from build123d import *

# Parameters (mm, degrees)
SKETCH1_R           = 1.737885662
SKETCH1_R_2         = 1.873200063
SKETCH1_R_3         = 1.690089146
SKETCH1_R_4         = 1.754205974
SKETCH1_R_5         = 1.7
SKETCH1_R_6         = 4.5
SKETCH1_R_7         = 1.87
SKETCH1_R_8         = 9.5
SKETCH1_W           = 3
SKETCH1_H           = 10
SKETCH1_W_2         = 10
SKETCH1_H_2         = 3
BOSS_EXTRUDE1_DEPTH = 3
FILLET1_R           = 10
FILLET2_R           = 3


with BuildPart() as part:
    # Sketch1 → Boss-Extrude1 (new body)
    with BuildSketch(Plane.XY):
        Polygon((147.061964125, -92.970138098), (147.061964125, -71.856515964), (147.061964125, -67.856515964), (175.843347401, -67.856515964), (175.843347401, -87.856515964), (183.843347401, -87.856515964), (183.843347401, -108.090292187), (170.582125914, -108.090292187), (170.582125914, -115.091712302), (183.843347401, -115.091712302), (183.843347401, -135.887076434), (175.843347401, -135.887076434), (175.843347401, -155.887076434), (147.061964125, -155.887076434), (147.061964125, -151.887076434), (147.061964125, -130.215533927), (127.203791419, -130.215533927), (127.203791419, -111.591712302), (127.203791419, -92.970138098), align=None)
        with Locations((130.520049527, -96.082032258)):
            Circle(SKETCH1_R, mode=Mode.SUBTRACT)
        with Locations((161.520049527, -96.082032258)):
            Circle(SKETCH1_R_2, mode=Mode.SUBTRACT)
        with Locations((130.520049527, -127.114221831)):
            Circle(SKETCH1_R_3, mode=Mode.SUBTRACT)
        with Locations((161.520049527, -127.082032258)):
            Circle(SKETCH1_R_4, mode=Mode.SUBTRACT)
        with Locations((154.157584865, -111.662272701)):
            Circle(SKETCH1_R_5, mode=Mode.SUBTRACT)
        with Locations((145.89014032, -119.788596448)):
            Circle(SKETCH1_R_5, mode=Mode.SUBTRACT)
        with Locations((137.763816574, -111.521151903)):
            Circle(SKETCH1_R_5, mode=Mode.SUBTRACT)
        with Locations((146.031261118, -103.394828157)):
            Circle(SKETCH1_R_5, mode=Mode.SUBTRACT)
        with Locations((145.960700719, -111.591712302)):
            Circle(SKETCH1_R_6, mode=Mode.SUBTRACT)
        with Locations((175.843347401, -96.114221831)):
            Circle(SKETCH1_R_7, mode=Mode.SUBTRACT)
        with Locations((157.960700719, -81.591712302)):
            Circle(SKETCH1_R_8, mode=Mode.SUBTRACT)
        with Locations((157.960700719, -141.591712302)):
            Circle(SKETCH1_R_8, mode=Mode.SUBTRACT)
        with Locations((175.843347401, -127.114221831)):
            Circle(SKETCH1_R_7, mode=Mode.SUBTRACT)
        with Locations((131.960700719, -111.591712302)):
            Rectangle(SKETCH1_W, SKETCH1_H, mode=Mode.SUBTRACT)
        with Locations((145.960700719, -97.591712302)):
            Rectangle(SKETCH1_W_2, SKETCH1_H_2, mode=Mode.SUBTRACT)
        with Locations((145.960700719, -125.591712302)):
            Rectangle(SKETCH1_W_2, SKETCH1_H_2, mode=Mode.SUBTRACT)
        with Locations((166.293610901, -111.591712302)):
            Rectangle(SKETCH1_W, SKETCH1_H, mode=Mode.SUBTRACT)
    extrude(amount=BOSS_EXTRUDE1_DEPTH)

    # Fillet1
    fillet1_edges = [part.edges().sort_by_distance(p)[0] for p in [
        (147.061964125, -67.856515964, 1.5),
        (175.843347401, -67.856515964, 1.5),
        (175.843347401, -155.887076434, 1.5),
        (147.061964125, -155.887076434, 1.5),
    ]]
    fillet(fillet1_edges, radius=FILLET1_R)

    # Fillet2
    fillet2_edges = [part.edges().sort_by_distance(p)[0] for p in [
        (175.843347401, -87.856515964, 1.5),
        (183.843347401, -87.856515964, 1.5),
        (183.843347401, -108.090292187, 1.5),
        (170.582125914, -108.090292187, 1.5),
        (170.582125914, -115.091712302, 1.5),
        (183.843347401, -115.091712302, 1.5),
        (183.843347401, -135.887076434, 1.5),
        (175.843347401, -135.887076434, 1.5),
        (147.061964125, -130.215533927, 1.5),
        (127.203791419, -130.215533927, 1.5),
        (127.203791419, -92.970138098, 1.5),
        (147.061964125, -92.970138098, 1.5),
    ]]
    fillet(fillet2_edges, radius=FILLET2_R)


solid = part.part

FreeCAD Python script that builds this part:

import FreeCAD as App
import Part
import Sketcher

V = App.Vector
Q = App.Units.Quantity


def edges_at(feature, points):
    """Names of the edges that pass closest to the given points."""
    edges = feature.Shape.Edges
    near = lambda p: min(range(len(edges)), key=lambda i: edges[i].distToShape(Part.Vertex(*p))[0])
    return sorted({f"Edge{near(p) + 1}" for p in points})

doc = App.newDocument("Part")
params = doc.addObject("Spreadsheet::Sheet", "Params")
for row, (alias, value) in enumerate([
    ("sketch1_diameter", "19 mm"),
    ("sketch1_diameter2", "9 mm"),
    ("sketch1_diameter3", "3.4 mm"),
    ("sketch1_diameter4", "3.74 mm"),
    ("sketch1_width", "8 mm"),
    ("pad1_length", "3 mm"),
    ("fillet_radius", "10 mm"),
    ("fillet2_radius", "3 mm"),
], start=1):
    params.set(f"A{row}", alias)
    params.set(f"B{row}", "=" + value)
    params.setAlias(f"B{row}", alias)

body = doc.addObject("PartDesign::Body", "Body")

sketch1 = body.newObject("Sketcher::SketchObject", "Sketch")
sketch1.AttachmentSupport = (doc.getObject("XY_Plane"), [""])
sketch1.MapMode = "FlatFace"
sketch1.addGeometry([
    Part.LineSegment(V(147.1, -67.9, 0), V(147.1, -93, 0)),
    Part.LineSegment(V(147.1, -93, 0), V(127.2, -93, 0)),
    Part.LineSegment(V(127.2, -93, 0), V(127.2, -130.2, 0)),
    Part.LineSegment(V(127.2, -130.2, 0), V(147.1, -130.2, 0)),
    Part.LineSegment(V(147.1, -130.2, 0), V(147.1, -155.9, 0)),
    Part.LineSegment(V(147.1, -155.9, 0), V(175.8, -155.9, 0)),
    Part.LineSegment(V(175.8, -155.9, 0), V(175.8, -135.9, 0)),
    Part.LineSegment(V(175.8, -135.9, 0), V(183.8, -135.9, 0)),
    Part.LineSegment(V(183.8, -135.9, 0), V(183.8, -115.1, 0)),
    Part.LineSegment(V(183.8, -115.1, 0), V(170.6, -115.1, 0)),
    Part.LineSegment(V(170.6, -115.1, 0), V(170.6, -108.1, 0)),
    Part.LineSegment(V(170.6, -108.1, 0), V(183.8, -108.1, 0)),
    Part.LineSegment(V(183.8, -108.1, 0), V(183.8, -87.9, 0)),
    Part.LineSegment(V(183.8, -87.9, 0), V(175.8, -87.9, 0)),
    Part.LineSegment(V(175.8, -87.9, 0), V(175.8, -67.9, 0)),
    Part.LineSegment(V(175.8, -67.9, 0), V(147.1, -67.9, 0)),
    Part.Circle(V(158, -141.6, 0), V(0, 0, 1), 9.5),
    Part.Circle(V(175.8, -127.1, 0), V(0, 0, 1), 1.9),
    Part.LineSegment(V(164.8, -116.6, 0), V(164.8, -106.6, 0)),
    Part.LineSegment(V(164.8, -106.6, 0), V(167.8, -106.6, 0)),
    Part.LineSegment(V(167.8, -106.6, 0), V(167.8, -116.6, 0)),
    Part.LineSegment(V(167.8, -116.6, 0), V(164.8, -116.6, 0)),
    Part.Circle(V(161.5, -127.1, 0), V(0, 0, 1), 1.8),
    Part.Circle(V(154.2, -111.7, 0), V(0, 0, 1), 1.7),
    Part.LineSegment(V(141, -127.1, 0), V(141, -124.1, 0)),
    Part.LineSegment(V(141, -124.1, 0), V(151, -124.1, 0)),
    Part.LineSegment(V(151, -124.1, 0), V(151, -127.1, 0)),
    Part.LineSegment(V(151, -127.1, 0), V(141, -127.1, 0)),
    Part.Circle(V(145.9, -119.8, 0), V(0, 0, 1), 1.7),
    Part.Circle(V(146, -111.6, 0), V(0, 0, 1), 4.5),
    Part.Circle(V(130.5, -127.1, 0), V(0, 0, 1), 1.7),
    Part.LineSegment(V(130.5, -116.6, 0), V(130.5, -106.6, 0)),
    Part.LineSegment(V(130.5, -106.6, 0), V(133.5, -106.6, 0)),
    Part.LineSegment(V(133.5, -106.6, 0), V(133.5, -116.6, 0)),
    Part.LineSegment(V(133.5, -116.6, 0), V(130.5, -116.6, 0)),
    Part.Circle(V(175.8, -96.1, 0), V(0, 0, 1), 1.9),
    Part.Circle(V(161.5, -96.1, 0), V(0, 0, 1), 1.9),
    Part.Circle(V(158, -81.6, 0), V(0, 0, 1), 9.5),
    Part.Circle(V(146, -103.4, 0), V(0, 0, 1), 1.7),
    Part.LineSegment(V(141, -99.1, 0), V(141, -96.1, 0)),
    Part.LineSegment(V(141, -96.1, 0), V(151, -96.1, 0)),
    Part.LineSegment(V(151, -96.1, 0), V(151, -99.1, 0)),
    Part.LineSegment(V(151, -99.1, 0), V(141, -99.1, 0)),
    Part.Circle(V(137.8, -111.5, 0), V(0, 0, 1), 1.7),
    Part.Circle(V(130.5, -96.1, 0), V(0, 0, 1), 1.7),
], False)
sketch1.addConstraint([
    Sketcher.Constraint("Coincident", 0, 2, 1, 1),
    Sketcher.Constraint("Coincident", 1, 2, 2, 1),
    Sketcher.Constraint("Coincident", 2, 2, 3, 1),
    Sketcher.Constraint("Coincident", 3, 2, 4, 1),
    Sketcher.Constraint("Coincident", 4, 2, 5, 1),
    Sketcher.Constraint("Coincident", 5, 2, 6, 1),
    Sketcher.Constraint("Coincident", 6, 2, 7, 1),
    Sketcher.Constraint("Coincident", 7, 2, 8, 1),
    Sketcher.Constraint("Coincident", 8, 2, 9, 1),
    Sketcher.Constraint("Coincident", 9, 2, 10, 1),
    Sketcher.Constraint("Coincident", 10, 2, 11, 1),
    Sketcher.Constraint("Coincident", 11, 2, 12, 1),
    Sketcher.Constraint("Coincident", 12, 2, 13, 1),
    Sketcher.Constraint("Coincident", 13, 2, 14, 1),
    Sketcher.Constraint("Coincident", 14, 2, 15, 1),
    Sketcher.Constraint("Coincident", 15, 2, 0, 1),
    Sketcher.Constraint("Coincident", 18, 2, 19, 1),
    Sketcher.Constraint("Coincident", 19, 2, 20, 1),
    Sketcher.Constraint("Coincident", 20, 2, 21, 1),
    Sketcher.Constraint("Coincident", 21, 2, 18, 1),
    Sketcher.Constraint("Coincident", 24, 2, 25, 1),
    Sketcher.Constraint("Coincident", 25, 2, 26, 1),
    Sketcher.Constraint("Coincident", 26, 2, 27, 1),
    Sketcher.Constraint("Coincident", 27, 2, 24, 1),
    Sketcher.Constraint("Coincident", 31, 2, 32, 1),
    Sketcher.Constraint("Coincident", 32, 2, 33, 1),
    Sketcher.Constraint("Coincident", 33, 2, 34, 1),
    Sketcher.Constraint("Coincident", 34, 2, 31, 1),
    Sketcher.Constraint("Coincident", 39, 2, 40, 1),
    Sketcher.Constraint("Coincident", 40, 2, 41, 1),
    Sketcher.Constraint("Coincident", 41, 2, 42, 1),
    Sketcher.Constraint("Coincident", 42, 2, 39, 1),
    Sketcher.Constraint("Vertical", 0),
    Sketcher.Constraint("Horizontal", 1),
    Sketcher.Constraint("Vertical", 2),
    Sketcher.Constraint("Horizontal", 3),
    Sketcher.Constraint("Vertical", 4),
    Sketcher.Constraint("Horizontal", 5),
    Sketcher.Constraint("Vertical", 6),
    Sketcher.Constraint("Horizontal", 7),
    Sketcher.Constraint("Vertical", 8),
    Sketcher.Constraint("Horizontal", 9),
    Sketcher.Constraint("Vertical", 10),
    Sketcher.Constraint("Horizontal", 11),
    Sketcher.Constraint("Vertical", 12),
    Sketcher.Constraint("Horizontal", 13),
    Sketcher.Constraint("Vertical", 14),
    Sketcher.Constraint("Horizontal", 15),
    Sketcher.Constraint("Vertical", 18),
    Sketcher.Constraint("Horizontal", 19),
    Sketcher.Constraint("Vertical", 20),
    Sketcher.Constraint("Horizontal", 21),
    Sketcher.Constraint("Vertical", 24),
    Sketcher.Constraint("Horizontal", 25),
    Sketcher.Constraint("Vertical", 26),
    Sketcher.Constraint("Horizontal", 27),
    Sketcher.Constraint("Vertical", 31),
    Sketcher.Constraint("Horizontal", 32),
    Sketcher.Constraint("Vertical", 33),
    Sketcher.Constraint("Horizontal", 34),
    Sketcher.Constraint("Vertical", 39),
    Sketcher.Constraint("Horizontal", 40),
    Sketcher.Constraint("Vertical", 41),
    Sketcher.Constraint("Horizontal", 42),
    Sketcher.Constraint("Equal", 23, 28),
    Sketcher.Constraint("Equal", 17, 35),
    Sketcher.Constraint("Equal", 16, 37),
    Sketcher.Constraint("Equal", 28, 38),
    Sketcher.Constraint("Equal", 38, 43),
    Sketcher.Constraint("Horizontal", 17, 3, 30, 3),
    Sketcher.Constraint("Horizontal", 36, 3, 44, 3),
    Sketcher.Constraint("Horizontal", 19, 2, 31, 2),
    Sketcher.Constraint("Horizontal", 21, 2, 33, 2),
    Sketcher.Constraint("Vertical", 17, 3, 35, 3),
    Sketcher.Constraint("Vertical", 22, 3, 36, 3),
    Sketcher.Constraint("Vertical", 16, 3, 37, 3),
    Sketcher.Constraint("Vertical", 30, 3, 44, 3),
    Sketcher.Constraint("Vertical", 0, 2, 3, 2),
    Sketcher.Constraint("Vertical", 35, 3, 5, 2),
    Sketcher.Constraint("Vertical", 8, 2, 11, 2),
    Sketcher.Constraint("Vertical", 6, 2, 13, 2),
    Sketcher.Constraint("Vertical", 27, 2, 39, 2),
    Sketcher.Constraint("Vertical", 26, 2, 40, 2),
    Sketcher.Constraint("Equal", 21, 32),
    Sketcher.Constraint("Equal", 6, 14),
    Sketcher.Constraint("Equal", 42, 18),
    Sketcher.Constraint("Equal", 34, 24),
    Sketcher.Constraint("Equal", 26, 39),
    Sketcher.Constraint("Diameter", 16, Q("19 mm")),
    Sketcher.Constraint("Diameter", 29, Q("9 mm")),
    Sketcher.Constraint("Diameter", 23, Q("3.4 mm")),
    Sketcher.Constraint("Diameter", 17, Q("3.74 mm")),
    Sketcher.Constraint("DistanceX", 7, 1, 7, 2, Q("8 mm")),
    Sketcher.Constraint("DistanceX", 19, 1, 19, 2, Q("3 mm")),
    Sketcher.Constraint("DistanceX", 25, 1, 25, 2, Q("10 mm")),
    Sketcher.Constraint("DistanceY", 6, 1, 6, 2, Q("20 mm")),
    Sketcher.Constraint("DistanceX", 29, 3, 16, 3, Q("12 mm")),
    Sketcher.Constraint("DistanceY", 16, 3, 29, 3, Q("30 mm")),
    Sketcher.Constraint("DistanceX", 30, 3, 22, 3, Q("31 mm")),
    Sketcher.Constraint("DistanceY", 17, 3, 35, 3, Q("31 mm")),
    Sketcher.Constraint("DistanceY", 22, 3, 36, 3, Q("31 mm")),
    Sketcher.Constraint("DistanceY", 29, 3, 37, 3, Q("30 mm")),
    Sketcher.Constraint("DistanceX", 24, 2, 29, 3, Q("5 mm")),
    Sketcher.Constraint("DistanceY", 29, 3, 31, 2, Q("5 mm")),
    Sketcher.Constraint("Diameter", 36, Q("3.7464 mm")),
    Sketcher.Constraint("DistanceY", 9, 2, 18, 2, Q("8.5 mm")),
    Sketcher.Constraint("DistanceY", 24, 2, 29, 3, Q("12.5 mm")),
    Sketcher.Constraint("DistanceX", 31, 2, 29, 3, Q("15.5 mm")),
    Sketcher.Constraint("DistanceY", 32, 2, 39, 2, Q("10.5 mm")),
    Sketcher.Constraint("Diameter", 22, Q("3.508412 mm")),
    Sketcher.Constraint("Diameter", 30, Q("3.380178 mm")),
    Sketcher.Constraint("Diameter", 44, Q("3.475771 mm")),
    Sketcher.Constraint("DistanceX", 9, 2, 9, 1, Q("13.261221 mm")),
    Sketcher.Constraint("DistanceY", 10, 1, 10, 2, Q("7.00142 mm")),
    Sketcher.Constraint("DistanceX", -1, 1, 16, 3, Q("157.960701 mm")),
    Sketcher.Constraint("DistanceY", 3, 2, 22, 3, Q("3.133502 mm")),
    Sketcher.Constraint("DistanceX", 1, 2, 1, 1, Q("19.858173 mm")),
    Sketcher.Constraint("DistanceX", 5, 1, 5, 2, Q("28.781383 mm")),
    Sketcher.Constraint("DistanceY", 0, 2, 0, 1, Q("25.113622 mm")),
    Sketcher.Constraint("DistanceY", 2, 2, 2, 1, Q("37.245396 mm")),
    Sketcher.Constraint("DistanceY", 4, 2, 4, 1, Q("25.671543 mm")),
    Sketcher.Constraint("DistanceY", 8, 1, 8, 2, Q("20.795364 mm")),
    Sketcher.Constraint("DistanceY", 17, 3, -1, 1, Q("127.114222 mm")),
    Sketcher.Constraint("DistanceX", -1, 1, 22, 3, Q("161.52005 mm")),
    Sketcher.Constraint("DistanceX", -1, 1, 28, 3, Q("145.89014 mm")),
    Sketcher.Constraint("DistanceX", -1, 1, 38, 3, Q("146.031261 mm")),
    Sketcher.Constraint("DistanceY", 38, 3, -1, 1, Q("103.394828 mm")),
    Sketcher.Constraint("DistanceY", 43, 3, -1, 1, Q("111.521152 mm")),
    Sketcher.Constraint("DistanceY", 0, 2, -1, 1, Q("92.970138 mm")),
    Sketcher.Constraint("DistanceX", -1, 1, 1, 2, Q("127.203791 mm")),
    Sketcher.Constraint("DistanceX", -1, 1, 18, 2, Q("164.793611 mm")),
    Sketcher.Constraint("DistanceY", 22, 3, 23, 3, Q("15.41976 mm")),
    Sketcher.Constraint("DistanceY", 28, 3, 38, 3, Q("16.393768 mm")),
    Sketcher.Constraint("DistanceX", 43, 3, 23, 3, Q("16.393768 mm")),
    Sketcher.Constraint("DistanceX", 23, 3, 9, 2, Q("16.424541 mm")),
])
sketch1.setExpression("Constraints[88]", "Params.sketch1_diameter")
sketch1.setExpression("Constraints[89]", "Params.sketch1_diameter2")
sketch1.setExpression("Constraints[90]", "Params.sketch1_diameter3")
sketch1.setExpression("Constraints[91]", "Params.sketch1_diameter4")
sketch1.setExpression("Constraints[92]", "Params.sketch1_width")
pad1 = body.newObject("PartDesign::Pad", "Pad")
pad1.Profile = sketch1
pad1.setExpression("Length", "Params.pad1_length")
doc.recompute()

fillet = body.newObject("PartDesign::Fillet", "Fillet")
fillet.Base = (pad1, edges_at(pad1, [
    (147.062, -67.857, 1.5),
    (175.843, -67.857, 1.5),
    (175.843, -155.887, 1.5),
    (147.062, -155.887, 1.5),
]))
fillet.setExpression("Radius", "Params.fillet_radius")
doc.recompute()

fillet2 = body.newObject("PartDesign::Fillet", "Fillet001")
fillet2.Base = (fillet, edges_at(fillet, [
    (175.843, -87.857, 1.5),
    (183.843, -87.857, 1.5),
    (183.843, -108.09, 1.5),
    (170.582, -108.09, 1.5),
    (170.582, -115.092, 1.5),
    (183.843, -115.092, 1.5),
    (183.843, -135.887, 1.5),
    (175.843, -135.887, 1.5),
    (147.062, -130.216, 1.5),
    (127.204, -130.216, 1.5),
    (127.204, -92.97, 1.5),
    (147.062, -92.97, 1.5),
]))
fillet2.setExpression("Radius", "Params.fillet2_radius")

doc.recompute()
